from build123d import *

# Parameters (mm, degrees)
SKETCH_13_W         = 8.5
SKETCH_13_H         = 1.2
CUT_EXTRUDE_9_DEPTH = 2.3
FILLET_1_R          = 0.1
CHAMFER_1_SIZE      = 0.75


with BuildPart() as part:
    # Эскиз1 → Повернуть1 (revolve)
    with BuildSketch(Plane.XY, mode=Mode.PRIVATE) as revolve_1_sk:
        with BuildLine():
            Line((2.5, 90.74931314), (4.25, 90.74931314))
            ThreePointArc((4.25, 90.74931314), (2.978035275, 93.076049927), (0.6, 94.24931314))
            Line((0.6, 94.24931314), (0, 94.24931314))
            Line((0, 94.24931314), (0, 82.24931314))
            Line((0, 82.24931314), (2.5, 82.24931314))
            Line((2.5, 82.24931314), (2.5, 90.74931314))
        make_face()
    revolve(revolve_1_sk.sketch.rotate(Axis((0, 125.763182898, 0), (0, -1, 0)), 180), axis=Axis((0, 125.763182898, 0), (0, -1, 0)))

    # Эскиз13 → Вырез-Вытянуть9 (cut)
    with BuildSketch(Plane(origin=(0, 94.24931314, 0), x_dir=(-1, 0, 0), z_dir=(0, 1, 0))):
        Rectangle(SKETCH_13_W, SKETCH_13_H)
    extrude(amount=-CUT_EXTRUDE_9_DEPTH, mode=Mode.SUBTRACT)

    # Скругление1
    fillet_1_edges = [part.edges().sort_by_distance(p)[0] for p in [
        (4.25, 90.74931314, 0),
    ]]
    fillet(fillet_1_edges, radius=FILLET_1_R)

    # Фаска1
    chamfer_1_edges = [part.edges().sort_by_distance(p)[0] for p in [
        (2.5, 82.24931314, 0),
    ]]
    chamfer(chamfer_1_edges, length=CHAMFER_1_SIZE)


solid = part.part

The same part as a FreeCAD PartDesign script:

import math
import FreeCAD as App
import Part
import Sketcher
from FreeCAD import Vector


def edges_at(feature, points):
    """Names of the edges that pass closest to the given points."""
    edges = feature.Shape.Edges
    near = lambda p: min(range(len(edges)), key=lambda i: edges[i].distToShape(Part.Vertex(*p))[0])
    return sorted({f"Edge{near(p) + 1}" for p in points})


def add_polygon(sketch, points):
    """Adds a closed chain of lines whose ends are joined by coincident constraints."""
    first, n = sketch.GeometryCount, len(points)
    for a, b in zip(points, points[1:] + points[:1]):
        sketch.addGeometry(Part.LineSegment(App.Vector(*a, 0), App.Vector(*b, 0)), False)
    for i in range(n):
        sketch.addConstraint(Sketcher.Constraint("Coincident", first + i, 2, first + (i + 1) % n, 1))

doc = App.newDocument("Part")
body = doc.addObject("PartDesign::Body", "Body")

# Sketch on XY plane
sketch1 = body.newObject("Sketcher::SketchObject", "Sketch")
sketch1.AttachmentSupport = (doc.getObject("XY_Plane"), [""])
sketch1.MapMode = "FlatFace"
sketch1.addGeometry([
    Part.LineSegment(Vector(2.5, 90.7, 0), Vector(4.2, 90.7, 0)),  # 0
    Part.ArcOfCircle(Part.Circle(Vector(-0.1, 89.9, 0), Vector(0, 0, 1), 4.4), math.radians(11), math.radians(81)),  # 1
    Part.LineSegment(Vector(0.6, 94.2, 0), Vector(0, 94.2, 0)),  # 2
    Part.LineSegment(Vector(0, 94.2, 0), Vector(0, 82.2, 0)),  # 3
    Part.LineSegment(Vector(0, 82.2, 0), Vector(2.5, 82.2, 0)),  # 4
    Part.LineSegment(Vector(2.5, 82.2, 0), Vector(2.5, 90.7, 0)),  # 5
], False)
sketch1.addConstraint([
    Sketcher.Constraint("Coincident", 0, 2, 1, 1),
    Sketcher.Constraint("Coincident", 1, 2, 2, 1),
    Sketcher.Constraint("Coincident", 2, 2, 3, 1),
    Sketcher.Constraint("Coincident", 3, 2, 4, 1),
    Sketcher.Constraint("Coincident", 4, 2, 5, 1),
    Sketcher.Constraint("Coincident", 5, 2, 0, 1),
    Sketcher.Constraint("Horizontal", 0),
    Sketcher.Constraint("Horizontal", 2),
    Sketcher.Constraint("Vertical", 3),
    Sketcher.Constraint("Horizontal", 4),
    Sketcher.Constraint("Vertical", 5),
    Sketcher.Constraint("PointOnObject", 2, 2, -2),
    Sketcher.Constraint("Radius", 1, 4.4),
    Sketcher.Constraint("DistanceY", 3, 2, 3, 1, 12.0),
    Sketcher.Constraint("DistanceX", 2, 2, 2, 1, 0.6),
    Sketcher.Constraint("DistanceX", 4, 1, 4, 2, 2.5),
    Sketcher.Constraint("DistanceY", 5, 1, 5, 2, 8.5),
    Sketcher.Constraint("DistanceX", 0, 1, 0, 2, 1.75),
    Sketcher.Constraint("DistanceY", -1, 1, 1, 3, 89.900207),
])
revolution = body.newObject("PartDesign::Revolution", "Revolution")
revolution.Profile = sketch1
revolution.ReferenceAxis = (sketch1, ["V_Axis"])
revolution.Angle = 360

# Sketch on XZ plane
sketch2 = body.newObject("Sketcher::SketchObject", "Sketch001")
sketch2.AttachmentSupport = (doc.getObject("XZ_Plane"), [""])
sketch2.MapMode = "FlatFace"
sketch2.AttachmentOffset = App.Placement(Vector(0, 0, -94.249313), App.Rotation())
add_polygon(sketch2, [(4.2, 0.6), (4.2, -0.6), (-4.2, -0.6), (-4.2, 0.6)])  # lines 0-3
sketch2.addConstraint([
    Sketcher.Constraint("Vertical", 0),
    Sketcher.Constraint("Horizontal", 1),
    Sketcher.Constraint("Vertical", 2),
    Sketcher.Constraint("Horizontal", 3),
    Sketcher.Constraint("Symmetric", 0, 2, 2, 2, -1, 1),
    Sketcher.Constraint("DistanceX", 1, 2, 1, 1, 8.5),
    Sketcher.Constraint("DistanceY", 0, 2, 0, 1, 1.2),
])
pocket1 = body.newObject("PartDesign::Pocket", "Pocket")
pocket1.Profile = sketch2
pocket1.Length = 2.3
pocket1.Reversed = True
doc.recompute()

fillet = body.newObject("PartDesign::Fillet", "Fillet")
fillet.Base = (pocket1, edges_at(pocket1, [(4.25, 90.749, 0)]))
fillet.Radius = 0.1
doc.recompute()

chamfer = body.newObject("PartDesign::Chamfer", "Chamfer")
chamfer.Base = (fillet, edges_at(fillet, [(2.5, 82.249, 0)]))
chamfer.Size = 0.75

doc.recompute()
